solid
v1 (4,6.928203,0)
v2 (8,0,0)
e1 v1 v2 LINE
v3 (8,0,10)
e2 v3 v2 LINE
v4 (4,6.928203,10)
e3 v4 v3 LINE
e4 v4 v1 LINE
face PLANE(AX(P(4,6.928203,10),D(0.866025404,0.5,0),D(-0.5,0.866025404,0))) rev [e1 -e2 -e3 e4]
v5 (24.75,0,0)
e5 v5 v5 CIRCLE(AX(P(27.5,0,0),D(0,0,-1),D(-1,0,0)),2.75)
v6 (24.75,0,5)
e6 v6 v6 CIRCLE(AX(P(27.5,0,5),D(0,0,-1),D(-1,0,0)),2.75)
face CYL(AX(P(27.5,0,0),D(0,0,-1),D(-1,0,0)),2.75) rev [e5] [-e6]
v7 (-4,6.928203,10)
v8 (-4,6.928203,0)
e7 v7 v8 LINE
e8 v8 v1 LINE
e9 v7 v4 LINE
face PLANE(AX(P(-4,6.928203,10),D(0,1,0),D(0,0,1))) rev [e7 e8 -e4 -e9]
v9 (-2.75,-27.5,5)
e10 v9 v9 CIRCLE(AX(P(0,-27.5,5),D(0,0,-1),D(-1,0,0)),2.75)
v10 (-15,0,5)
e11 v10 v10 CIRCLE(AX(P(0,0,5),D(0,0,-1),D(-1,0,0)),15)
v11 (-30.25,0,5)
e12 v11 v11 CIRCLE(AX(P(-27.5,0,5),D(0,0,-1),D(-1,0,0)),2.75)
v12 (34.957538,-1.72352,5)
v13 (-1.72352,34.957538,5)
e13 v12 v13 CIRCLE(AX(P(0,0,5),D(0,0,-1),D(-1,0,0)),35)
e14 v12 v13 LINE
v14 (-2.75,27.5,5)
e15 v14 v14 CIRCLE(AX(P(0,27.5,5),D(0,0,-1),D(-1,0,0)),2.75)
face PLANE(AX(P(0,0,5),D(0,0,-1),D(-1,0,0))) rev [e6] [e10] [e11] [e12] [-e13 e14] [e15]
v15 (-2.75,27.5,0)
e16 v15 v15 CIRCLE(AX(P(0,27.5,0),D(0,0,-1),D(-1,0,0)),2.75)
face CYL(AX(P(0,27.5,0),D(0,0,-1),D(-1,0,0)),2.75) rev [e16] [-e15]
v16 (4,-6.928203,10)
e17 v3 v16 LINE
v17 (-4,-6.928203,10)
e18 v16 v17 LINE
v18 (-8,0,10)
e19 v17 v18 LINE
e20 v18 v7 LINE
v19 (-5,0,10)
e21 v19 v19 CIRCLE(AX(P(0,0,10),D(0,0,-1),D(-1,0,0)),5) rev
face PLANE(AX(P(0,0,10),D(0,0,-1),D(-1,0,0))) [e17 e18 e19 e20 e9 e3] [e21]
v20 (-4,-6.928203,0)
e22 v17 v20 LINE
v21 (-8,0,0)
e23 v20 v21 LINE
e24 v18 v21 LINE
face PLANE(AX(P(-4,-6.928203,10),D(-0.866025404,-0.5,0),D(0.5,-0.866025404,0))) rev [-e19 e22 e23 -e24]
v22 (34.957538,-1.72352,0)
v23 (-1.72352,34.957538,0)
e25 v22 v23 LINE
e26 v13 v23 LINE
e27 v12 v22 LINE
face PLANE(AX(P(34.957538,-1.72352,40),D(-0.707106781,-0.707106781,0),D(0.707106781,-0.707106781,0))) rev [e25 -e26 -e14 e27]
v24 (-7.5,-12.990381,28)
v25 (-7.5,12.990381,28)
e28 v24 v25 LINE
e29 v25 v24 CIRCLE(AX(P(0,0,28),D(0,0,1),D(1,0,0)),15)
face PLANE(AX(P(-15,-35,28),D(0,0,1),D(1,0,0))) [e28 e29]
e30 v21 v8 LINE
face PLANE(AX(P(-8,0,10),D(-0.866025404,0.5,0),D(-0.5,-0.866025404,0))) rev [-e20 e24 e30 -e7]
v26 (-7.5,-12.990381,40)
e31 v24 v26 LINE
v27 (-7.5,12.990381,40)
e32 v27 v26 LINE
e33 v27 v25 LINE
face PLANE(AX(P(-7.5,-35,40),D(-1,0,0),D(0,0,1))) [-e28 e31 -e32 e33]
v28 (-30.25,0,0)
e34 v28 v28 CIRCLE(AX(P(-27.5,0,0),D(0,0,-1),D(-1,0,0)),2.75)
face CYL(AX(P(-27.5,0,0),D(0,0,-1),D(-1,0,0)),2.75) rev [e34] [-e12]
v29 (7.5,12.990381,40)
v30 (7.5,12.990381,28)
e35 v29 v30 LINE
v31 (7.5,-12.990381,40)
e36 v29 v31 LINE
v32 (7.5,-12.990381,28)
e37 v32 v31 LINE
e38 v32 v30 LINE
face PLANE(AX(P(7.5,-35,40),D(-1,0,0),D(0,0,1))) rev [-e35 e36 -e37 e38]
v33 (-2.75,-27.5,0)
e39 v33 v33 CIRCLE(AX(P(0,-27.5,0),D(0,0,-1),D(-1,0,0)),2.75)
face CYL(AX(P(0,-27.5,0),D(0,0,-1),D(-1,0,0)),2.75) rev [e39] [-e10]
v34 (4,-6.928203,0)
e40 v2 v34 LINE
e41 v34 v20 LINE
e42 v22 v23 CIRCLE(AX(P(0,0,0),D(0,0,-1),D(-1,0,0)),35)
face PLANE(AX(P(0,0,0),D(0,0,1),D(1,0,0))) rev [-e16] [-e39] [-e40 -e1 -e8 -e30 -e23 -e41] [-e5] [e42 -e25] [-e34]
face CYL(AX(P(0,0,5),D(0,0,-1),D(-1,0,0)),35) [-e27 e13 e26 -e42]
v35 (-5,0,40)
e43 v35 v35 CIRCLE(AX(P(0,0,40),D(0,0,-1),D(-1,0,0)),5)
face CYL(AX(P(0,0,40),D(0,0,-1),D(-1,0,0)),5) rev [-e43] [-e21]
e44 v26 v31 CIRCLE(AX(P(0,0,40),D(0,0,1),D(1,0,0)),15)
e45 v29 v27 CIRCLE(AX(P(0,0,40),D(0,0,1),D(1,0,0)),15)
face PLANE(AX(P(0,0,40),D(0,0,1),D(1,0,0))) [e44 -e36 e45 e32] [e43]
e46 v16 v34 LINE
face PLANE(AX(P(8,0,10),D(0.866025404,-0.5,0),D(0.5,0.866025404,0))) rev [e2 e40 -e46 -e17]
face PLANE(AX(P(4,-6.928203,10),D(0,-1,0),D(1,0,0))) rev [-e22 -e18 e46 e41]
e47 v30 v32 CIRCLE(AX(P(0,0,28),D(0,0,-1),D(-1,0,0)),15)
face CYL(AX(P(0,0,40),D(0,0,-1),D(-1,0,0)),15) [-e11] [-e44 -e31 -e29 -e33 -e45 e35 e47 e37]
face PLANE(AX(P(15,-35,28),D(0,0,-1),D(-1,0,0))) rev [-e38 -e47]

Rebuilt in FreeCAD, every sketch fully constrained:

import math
import FreeCAD as App
import Part
import Sketcher
Q = App.Units.Quantity

doc = App.newDocument("Part")
body = doc.addObject("PartDesign::Body", "Body")

sketch1 = body.newObject("Sketcher::SketchObject", "Sketch")
sketch1.AttachmentSupport = (doc.getObject("XY_Plane"), [""])
sketch1.MapMode = "FlatFace"
sketch1.addGeometry(Part.Circle(App.Vector(0, 0, 0), App.Vector(0, 0, 1), 15), False)
sketch1.addConstraint([
    Sketcher.Constraint("Coincident", 0, 3, -1, 1),
    Sketcher.Constraint("Diameter", 0, 30.0),
])
pad1 = body.newObject("PartDesign::Pad", "Pad")
pad1.Profile = sketch1
pad1.Length = 40

sketch2 = body.newObject("Sketcher::SketchObject", "Sketch001")
sketch2.AttachmentSupport = (doc.getObject("XY_Plane"), [""])
sketch2.MapMode = "FlatFace"
sketch2.addGeometry(Part.Circle(App.Vector(0, 0, 0), App.Vector(0, 0, 1), 35), False)
sketch2.addConstraint([
    Sketcher.Constraint("Coincident", 0, 3, -1, 1),
    Sketcher.Constraint("Diameter", 0, 70.0),
])
pad2 = body.newObject("PartDesign::Pad", "Pad001")
pad2.Profile = sketch2
pad2.Length = 5

sketch3 = body.newObject("Sketcher::SketchObject", "Sketch002")
sketch3.AttachmentSupport = (doc.getObject("XY_Plane"), [""])
sketch3.MapMode = "FlatFace"
sketch3.addGeometry(Part.Circle(App.Vector(0, 0, 0), App.Vector(0, 0, 1), 5), False)
sketch3.addConstraint([
    Sketcher.Constraint("Coincident", 0, 3, -1, 1),
    Sketcher.Constraint("Diameter", 0, 10.0),
])
pocket1 = body.newObject("PartDesign::Pocket", "Pocket")
pocket1.Profile = sketch3
pocket1.Type = "ThroughAll"
pocket1.Reversed = True

sketch4 = body.newObject("Sketcher::SketchObject", "Sketch003")
sketch4.AttachmentSupport = (doc.getObject("XY_Plane"), [""])
sketch4.MapMode = "FlatFace"
sketch4.addGeometry([
    Part.LineSegment(App.Vector(-8, 0, 0), App.Vector(-4, 7, 0)),
    Part.LineSegment(App.Vector(-4, 7, 0), App.Vector(4, 7, 0)),
    Part.LineSegment(App.Vector(4, 7, 0), App.Vector(8, 0, 0)),
    Part.LineSegment(App.Vector(8, 0, 0), App.Vector(4, -7, 0)),
    Part.LineSegment(App.Vector(4, -7, 0), App.Vector(-4, -7, 0)),
    Part.LineSegment(App.Vector(-4, -7, 0), App.Vector(-8, 0, 0)),
], False)
sketch4.addConstraint([
    Sketcher.Constraint("Coincident", 0, 2, 1, 1),
    Sketcher.Constraint("Coincident", 1, 2, 2, 1),
    Sketcher.Constraint("Coincident", 2, 2, 3, 1),
    Sketcher.Constraint("Coincident", 3, 2, 4, 1),
    Sketcher.Constraint("Coincident", 4, 2, 5, 1),
    Sketcher.Constraint("Coincident", 5, 2, 0, 1),
    Sketcher.Constraint("Horizontal", 1),
    Sketcher.Constraint("Horizontal", 4),
    Sketcher.Constraint("Symmetric", 0, 2, 3, 2, -1, 1),
    Sketcher.Constraint("Symmetric", 2, 2, 5, 2, -1, 1),
    Sketcher.Constraint("PointOnObject", 2, 2, -1),
    Sketcher.Constraint("Parallel", 2, 5),
    Sketcher.Constraint("Vertical", 1, 2, 3, 2),
    Sketcher.Constraint("DistanceX", 1, 1, 1, 2, 8.0),
    Sketcher.Constraint("Angle", 0, Q("60 deg")),
    Sketcher.Constraint("Distance", 0, 8.0),
])
pocket2 = body.newObject("PartDesign::Pocket", "Pocket001")
pocket2.Profile = sketch4
pocket2.Length = 10
pocket2.Reversed = True

sketch5 = body.newObject("Sketcher::SketchObject", "Sketch004")
sketch5.AttachmentSupport = (doc.getObject("XZ_Plane"), [""])
sketch5.MapMode = "FlatFace"
sketch5.addGeometry([
    Part.LineSegment(App.Vector(8, 28, 0), App.Vector(8, 40, 0)),
    Part.LineSegment(App.Vector(8, 40, 0), App.Vector(15, 40, 0)),
    Part.LineSegment(App.Vector(15, 40, 0), App.Vector(15, 28, 0)),
    Part.LineSegment(App.Vector(15, 28, 0), App.Vector(8, 28, 0)),
], False)
sketch5.addConstraint([
    Sketcher.Constraint("Coincident", 0, 2, 1, 1),
    Sketcher.Constraint("Coincident", 1, 2, 2, 1),
    Sketcher.Constraint("Coincident", 2, 2, 3, 1),
    Sketcher.Constraint("Coincident", 3, 2, 0, 1),
    Sketcher.Constraint("Vertical", 0),
    Sketcher.Constraint("Horizontal", 1),
    Sketcher.Constraint("Vertical", 2),
    Sketcher.Constraint("Horizontal", 3),
    Sketcher.Constraint("DistanceY", 0, 1, 0, 2, 12.0),
    Sketcher.Constraint("DistanceX", 1, 1, 1, 2, 7.5),
    Sketcher.Constraint("DistanceY", -1, 1, 0, 2, 40.0),
    Sketcher.Constraint("DistanceX", -1, 1, 1, 2, 15.0),
])
pocket3 = body.newObject("PartDesign::Pocket", "Pocket002")
pocket3.Profile = sketch5
pocket3.Length = 129.279221
pocket3.Midplane = True
doc.recompute()

mirrored = body.newObject("PartDesign::Mirrored", "Mirrored")
mirrored.Originals = [pocket3]
mirrored.MirrorPlane = (doc.getObject("YZ_Plane"), [""])
body.Tip = mirrored

sketch6 = body.newObject("Sketcher::SketchObject", "Sketch005")
sketch6.AttachmentSupport = (doc.getObject("XY_Plane"), [""])
sketch6.MapMode = "FlatFace"
sketch6.addGeometry([
    Part.Circle(App.Vector(0, 27.5, 0), App.Vector(0, 0, 1), 2.8),
    Part.Circle(App.Vector(27.5, 0, 0), App.Vector(0, 0, 1), 2.8),
    Part.Circle(App.Vector(-27.5, 0, 0), App.Vector(0, 0, 1), 2.8),
    Part.Circle(App.Vector(0, -27.5, 0), App.Vector(0, 0, 1), 2.8),
], False)
sketch6.addConstraint([
    Sketcher.Constraint("Equal", 0, 1),
    Sketcher.Constraint("Equal", 1, 2),
    Sketcher.Constraint("Equal", 2, 3),
    Sketcher.Constraint("Symmetric", 1, 3, 2, 3, -1, 1),
    Sketcher.Constraint("Symmetric", 0, 3, 3, 3, -1, 1),
    Sketcher.Constraint("PointOnObject", 0, 3, -2),
    Sketcher.Constraint("PointOnObject", 1, 3, -1),
    Sketcher.Constraint("Diameter", 0, 5.5),
    Sketcher.Constraint("DistanceX", 2, 3, 1, 3, 55.0),
    Sketcher.Constraint("DistanceY", 3, 3, 0, 3, 55.0),
])
doc.recompute()
hole = body.newObject("PartDesign::Hole", "Hole")
hole.Profile = sketch6
hole.ThreadType = "None"
hole.Diameter = 5.5
hole.DepthType = "ThroughAll"
hole.Reversed = True

sketch7 = body.newObject("Sketcher::SketchObject", "Sketch006")
sketch7.AttachmentSupport = (doc.getObject("XY_Plane"), [""])
sketch7.MapMode = "FlatFace"
sketch7.addGeometry([
    Part.LineSegment(App.Vector(35, -2, 0), App.Vector(-2, 35, 0)),
    Part.ArcOfCircle(Part.Circle(App.Vector(0, 0, 0), App.Vector(0, 0, 1), 35), math.radians(-3), math.radians(93)),
], False)
sketch7.addConstraint([
    Sketcher.Constraint("Coincident", 0, 1, 1, 1),
    Sketcher.Constraint("Coincident", 1, 2, 0, 2),
    Sketcher.Constraint("Coincident", 1, 3, -1, 1),
    Sketcher.Constraint("Radius", 1, 35.0),
    Sketcher.Constraint("Angle", 0, Q("135 deg")),
    Sketcher.Constraint("Distance", 0, 51.874849),
])
pocket4 = body.newObject("PartDesign::Pocket", "Pocket003")
pocket4.Profile = sketch7
pocket4.Type = "ThroughAll"
pocket4.Reversed = True

doc.recompute()
